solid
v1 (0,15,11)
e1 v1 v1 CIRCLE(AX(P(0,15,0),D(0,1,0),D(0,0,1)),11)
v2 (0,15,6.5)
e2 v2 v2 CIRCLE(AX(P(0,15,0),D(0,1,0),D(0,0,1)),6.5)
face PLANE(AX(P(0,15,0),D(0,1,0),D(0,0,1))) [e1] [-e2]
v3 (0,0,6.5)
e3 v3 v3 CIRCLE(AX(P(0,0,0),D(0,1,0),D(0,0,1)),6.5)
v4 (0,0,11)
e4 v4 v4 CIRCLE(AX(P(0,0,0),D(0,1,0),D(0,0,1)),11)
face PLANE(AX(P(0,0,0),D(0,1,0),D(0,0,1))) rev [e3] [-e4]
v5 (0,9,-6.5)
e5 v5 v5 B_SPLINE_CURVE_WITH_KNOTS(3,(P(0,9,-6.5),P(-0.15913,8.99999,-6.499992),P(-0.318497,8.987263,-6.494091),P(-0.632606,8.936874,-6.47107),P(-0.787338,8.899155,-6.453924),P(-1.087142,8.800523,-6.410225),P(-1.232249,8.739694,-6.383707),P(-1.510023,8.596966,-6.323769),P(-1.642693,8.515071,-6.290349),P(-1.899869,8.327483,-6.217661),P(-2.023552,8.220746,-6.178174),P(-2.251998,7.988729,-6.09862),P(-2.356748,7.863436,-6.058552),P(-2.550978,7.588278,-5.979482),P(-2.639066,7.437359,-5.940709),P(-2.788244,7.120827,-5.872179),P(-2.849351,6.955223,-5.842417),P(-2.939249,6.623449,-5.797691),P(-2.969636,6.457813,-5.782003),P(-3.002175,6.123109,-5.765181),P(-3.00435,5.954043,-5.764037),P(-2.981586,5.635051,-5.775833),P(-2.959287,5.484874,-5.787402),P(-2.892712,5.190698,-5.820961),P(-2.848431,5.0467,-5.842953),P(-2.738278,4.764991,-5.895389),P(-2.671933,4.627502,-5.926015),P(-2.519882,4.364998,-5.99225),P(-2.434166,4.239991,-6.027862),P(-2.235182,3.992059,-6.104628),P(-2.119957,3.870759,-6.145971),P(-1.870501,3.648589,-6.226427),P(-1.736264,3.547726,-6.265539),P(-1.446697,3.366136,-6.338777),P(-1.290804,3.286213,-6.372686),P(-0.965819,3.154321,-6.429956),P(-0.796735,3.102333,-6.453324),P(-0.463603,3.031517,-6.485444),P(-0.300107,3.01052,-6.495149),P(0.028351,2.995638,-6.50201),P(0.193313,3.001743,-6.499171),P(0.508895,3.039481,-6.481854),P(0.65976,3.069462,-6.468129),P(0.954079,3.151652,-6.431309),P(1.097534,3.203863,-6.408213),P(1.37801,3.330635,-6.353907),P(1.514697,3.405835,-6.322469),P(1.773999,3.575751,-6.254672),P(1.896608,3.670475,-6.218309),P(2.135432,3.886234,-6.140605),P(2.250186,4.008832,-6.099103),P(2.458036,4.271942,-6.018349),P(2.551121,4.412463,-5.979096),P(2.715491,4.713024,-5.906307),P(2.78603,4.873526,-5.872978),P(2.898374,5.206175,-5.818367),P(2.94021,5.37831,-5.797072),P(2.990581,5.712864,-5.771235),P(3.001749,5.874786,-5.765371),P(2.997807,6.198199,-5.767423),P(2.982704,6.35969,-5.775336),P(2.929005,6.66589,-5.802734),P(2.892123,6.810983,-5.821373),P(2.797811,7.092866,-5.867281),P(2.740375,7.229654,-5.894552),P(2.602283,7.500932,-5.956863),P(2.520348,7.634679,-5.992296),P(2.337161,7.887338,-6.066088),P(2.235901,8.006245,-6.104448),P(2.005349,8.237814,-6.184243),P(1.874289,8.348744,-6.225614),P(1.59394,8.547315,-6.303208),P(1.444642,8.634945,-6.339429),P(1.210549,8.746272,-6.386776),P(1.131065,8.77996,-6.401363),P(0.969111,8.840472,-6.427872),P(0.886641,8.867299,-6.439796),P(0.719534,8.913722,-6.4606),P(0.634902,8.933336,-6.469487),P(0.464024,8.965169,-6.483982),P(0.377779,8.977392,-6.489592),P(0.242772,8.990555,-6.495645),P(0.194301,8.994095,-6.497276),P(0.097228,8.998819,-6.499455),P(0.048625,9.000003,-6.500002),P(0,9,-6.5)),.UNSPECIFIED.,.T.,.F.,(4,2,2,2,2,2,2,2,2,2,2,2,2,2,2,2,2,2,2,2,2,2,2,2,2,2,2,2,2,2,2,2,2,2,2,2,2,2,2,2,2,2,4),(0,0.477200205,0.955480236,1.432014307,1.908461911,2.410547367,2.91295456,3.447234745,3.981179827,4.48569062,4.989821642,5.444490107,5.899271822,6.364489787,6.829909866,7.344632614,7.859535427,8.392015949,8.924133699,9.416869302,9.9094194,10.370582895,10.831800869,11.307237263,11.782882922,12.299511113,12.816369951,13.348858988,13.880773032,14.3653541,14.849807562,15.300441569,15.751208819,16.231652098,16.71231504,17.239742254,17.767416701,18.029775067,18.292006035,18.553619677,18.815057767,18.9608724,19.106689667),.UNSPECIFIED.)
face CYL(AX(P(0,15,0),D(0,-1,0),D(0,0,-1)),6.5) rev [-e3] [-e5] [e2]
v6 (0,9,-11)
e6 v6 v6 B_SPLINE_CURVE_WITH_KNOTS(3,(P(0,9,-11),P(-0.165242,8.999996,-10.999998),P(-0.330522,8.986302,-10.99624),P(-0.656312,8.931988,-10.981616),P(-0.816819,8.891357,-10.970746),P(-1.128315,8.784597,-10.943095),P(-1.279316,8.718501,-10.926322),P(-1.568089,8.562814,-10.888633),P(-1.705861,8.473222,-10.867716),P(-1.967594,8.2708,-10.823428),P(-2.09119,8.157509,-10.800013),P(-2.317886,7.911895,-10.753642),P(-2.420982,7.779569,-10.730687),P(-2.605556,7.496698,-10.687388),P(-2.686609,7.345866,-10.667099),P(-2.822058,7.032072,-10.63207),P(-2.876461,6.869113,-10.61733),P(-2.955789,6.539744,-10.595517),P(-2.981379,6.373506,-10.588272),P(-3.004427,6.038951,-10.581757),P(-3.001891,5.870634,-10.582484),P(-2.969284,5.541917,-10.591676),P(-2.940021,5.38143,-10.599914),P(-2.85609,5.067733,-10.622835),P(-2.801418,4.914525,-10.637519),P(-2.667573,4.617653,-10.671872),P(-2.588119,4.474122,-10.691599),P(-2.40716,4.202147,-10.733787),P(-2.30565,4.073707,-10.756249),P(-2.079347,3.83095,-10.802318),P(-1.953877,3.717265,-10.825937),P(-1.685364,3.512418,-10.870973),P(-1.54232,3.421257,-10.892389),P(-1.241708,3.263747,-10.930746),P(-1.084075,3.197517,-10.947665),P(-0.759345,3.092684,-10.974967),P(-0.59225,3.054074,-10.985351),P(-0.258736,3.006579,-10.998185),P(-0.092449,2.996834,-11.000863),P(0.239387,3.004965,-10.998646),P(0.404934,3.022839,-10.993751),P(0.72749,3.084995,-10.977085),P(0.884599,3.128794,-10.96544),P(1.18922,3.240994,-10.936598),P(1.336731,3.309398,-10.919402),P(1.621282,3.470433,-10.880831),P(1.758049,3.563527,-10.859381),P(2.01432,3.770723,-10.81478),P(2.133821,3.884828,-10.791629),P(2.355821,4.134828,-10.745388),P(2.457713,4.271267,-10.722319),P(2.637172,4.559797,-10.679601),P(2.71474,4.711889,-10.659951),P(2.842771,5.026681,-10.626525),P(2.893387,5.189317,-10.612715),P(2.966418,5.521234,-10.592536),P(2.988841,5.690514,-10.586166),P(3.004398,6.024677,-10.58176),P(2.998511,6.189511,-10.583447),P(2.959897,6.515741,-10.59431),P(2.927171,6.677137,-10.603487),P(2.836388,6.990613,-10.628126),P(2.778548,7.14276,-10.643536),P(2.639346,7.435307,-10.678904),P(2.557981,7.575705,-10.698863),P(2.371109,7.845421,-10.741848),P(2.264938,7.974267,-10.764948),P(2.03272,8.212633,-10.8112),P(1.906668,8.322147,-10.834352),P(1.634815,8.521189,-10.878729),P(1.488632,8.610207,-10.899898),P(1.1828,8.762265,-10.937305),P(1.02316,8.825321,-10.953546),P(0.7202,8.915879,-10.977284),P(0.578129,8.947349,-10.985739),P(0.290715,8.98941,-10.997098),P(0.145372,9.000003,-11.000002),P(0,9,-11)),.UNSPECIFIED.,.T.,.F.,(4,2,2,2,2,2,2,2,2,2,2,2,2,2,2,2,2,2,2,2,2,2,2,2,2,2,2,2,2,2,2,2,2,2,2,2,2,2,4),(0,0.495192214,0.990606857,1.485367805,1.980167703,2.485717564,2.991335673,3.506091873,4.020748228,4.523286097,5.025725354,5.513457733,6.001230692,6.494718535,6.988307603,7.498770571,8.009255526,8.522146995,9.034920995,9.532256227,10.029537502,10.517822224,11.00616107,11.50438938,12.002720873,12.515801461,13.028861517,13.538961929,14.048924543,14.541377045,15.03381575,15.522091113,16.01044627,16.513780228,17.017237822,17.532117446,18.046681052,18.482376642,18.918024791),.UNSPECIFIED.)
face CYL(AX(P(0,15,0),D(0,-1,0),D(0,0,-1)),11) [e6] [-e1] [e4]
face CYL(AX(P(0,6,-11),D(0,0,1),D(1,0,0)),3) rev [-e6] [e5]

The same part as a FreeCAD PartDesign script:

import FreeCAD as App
import Part
import Sketcher

V = App.Vector
Q = App.Units.Quantity

doc = App.newDocument("Part")
body = doc.addObject("PartDesign::Body", "Body")

# Sketch on XZ plane
sketch1 = body.newObject("Sketcher::SketchObject", "Sketch")
sketch1.AttachmentSupport = (doc.getObject("XZ_Plane"), [""])
sketch1.MapMode = "FlatFace"
sketch1.addGeometry(Part.Circle(V(0, 0, 0), V(0, 0, 1), 11), False)
sketch1.addGeometry(Part.Circle(V(0, 0, 0), V(0, 0, 1), 6.5), False)
sketch1.addConstraint(Sketcher.Constraint("Coincident", 0, 3, -1, 1))
sketch1.addConstraint(Sketcher.Constraint("Coincident", 1, 3, -1, 1))
sketch1.addConstraint(Sketcher.Constraint("Diameter", 0, Q("22 mm")))
sketch1.addConstraint(Sketcher.Constraint("Diameter", 1, Q("13 mm")))
pad1 = body.newObject("PartDesign::Pad", "Pad")
pad1.Profile = sketch1
pad1.Length = 15
pad1.Reversed = True

# Sketch on XY plane
sketch2 = body.newObject("Sketcher::SketchObject", "Sketch001")
sketch2.AttachmentSupport = (doc.getObject("XY_Plane"), [""])
sketch2.MapMode = "FlatFace"
sketch2.addGeometry(Part.Circle(V(0, 6, 0), V(0, 0, 1), 3), False)
sketch2.addConstraint(Sketcher.Constraint("PointOnObject", 0, 3, -2))
sketch2.addConstraint(Sketcher.Constraint("Diameter", 0, Q("6 mm")))
sketch2.addConstraint(Sketcher.Constraint("DistanceY", -1, 1, 0, 3, Q("6 mm")))
pocket1 = body.newObject("PartDesign::Pocket", "Pocket")
pocket1.Profile = sketch2
pocket1.Type = "ThroughAll"

doc.recompute()
